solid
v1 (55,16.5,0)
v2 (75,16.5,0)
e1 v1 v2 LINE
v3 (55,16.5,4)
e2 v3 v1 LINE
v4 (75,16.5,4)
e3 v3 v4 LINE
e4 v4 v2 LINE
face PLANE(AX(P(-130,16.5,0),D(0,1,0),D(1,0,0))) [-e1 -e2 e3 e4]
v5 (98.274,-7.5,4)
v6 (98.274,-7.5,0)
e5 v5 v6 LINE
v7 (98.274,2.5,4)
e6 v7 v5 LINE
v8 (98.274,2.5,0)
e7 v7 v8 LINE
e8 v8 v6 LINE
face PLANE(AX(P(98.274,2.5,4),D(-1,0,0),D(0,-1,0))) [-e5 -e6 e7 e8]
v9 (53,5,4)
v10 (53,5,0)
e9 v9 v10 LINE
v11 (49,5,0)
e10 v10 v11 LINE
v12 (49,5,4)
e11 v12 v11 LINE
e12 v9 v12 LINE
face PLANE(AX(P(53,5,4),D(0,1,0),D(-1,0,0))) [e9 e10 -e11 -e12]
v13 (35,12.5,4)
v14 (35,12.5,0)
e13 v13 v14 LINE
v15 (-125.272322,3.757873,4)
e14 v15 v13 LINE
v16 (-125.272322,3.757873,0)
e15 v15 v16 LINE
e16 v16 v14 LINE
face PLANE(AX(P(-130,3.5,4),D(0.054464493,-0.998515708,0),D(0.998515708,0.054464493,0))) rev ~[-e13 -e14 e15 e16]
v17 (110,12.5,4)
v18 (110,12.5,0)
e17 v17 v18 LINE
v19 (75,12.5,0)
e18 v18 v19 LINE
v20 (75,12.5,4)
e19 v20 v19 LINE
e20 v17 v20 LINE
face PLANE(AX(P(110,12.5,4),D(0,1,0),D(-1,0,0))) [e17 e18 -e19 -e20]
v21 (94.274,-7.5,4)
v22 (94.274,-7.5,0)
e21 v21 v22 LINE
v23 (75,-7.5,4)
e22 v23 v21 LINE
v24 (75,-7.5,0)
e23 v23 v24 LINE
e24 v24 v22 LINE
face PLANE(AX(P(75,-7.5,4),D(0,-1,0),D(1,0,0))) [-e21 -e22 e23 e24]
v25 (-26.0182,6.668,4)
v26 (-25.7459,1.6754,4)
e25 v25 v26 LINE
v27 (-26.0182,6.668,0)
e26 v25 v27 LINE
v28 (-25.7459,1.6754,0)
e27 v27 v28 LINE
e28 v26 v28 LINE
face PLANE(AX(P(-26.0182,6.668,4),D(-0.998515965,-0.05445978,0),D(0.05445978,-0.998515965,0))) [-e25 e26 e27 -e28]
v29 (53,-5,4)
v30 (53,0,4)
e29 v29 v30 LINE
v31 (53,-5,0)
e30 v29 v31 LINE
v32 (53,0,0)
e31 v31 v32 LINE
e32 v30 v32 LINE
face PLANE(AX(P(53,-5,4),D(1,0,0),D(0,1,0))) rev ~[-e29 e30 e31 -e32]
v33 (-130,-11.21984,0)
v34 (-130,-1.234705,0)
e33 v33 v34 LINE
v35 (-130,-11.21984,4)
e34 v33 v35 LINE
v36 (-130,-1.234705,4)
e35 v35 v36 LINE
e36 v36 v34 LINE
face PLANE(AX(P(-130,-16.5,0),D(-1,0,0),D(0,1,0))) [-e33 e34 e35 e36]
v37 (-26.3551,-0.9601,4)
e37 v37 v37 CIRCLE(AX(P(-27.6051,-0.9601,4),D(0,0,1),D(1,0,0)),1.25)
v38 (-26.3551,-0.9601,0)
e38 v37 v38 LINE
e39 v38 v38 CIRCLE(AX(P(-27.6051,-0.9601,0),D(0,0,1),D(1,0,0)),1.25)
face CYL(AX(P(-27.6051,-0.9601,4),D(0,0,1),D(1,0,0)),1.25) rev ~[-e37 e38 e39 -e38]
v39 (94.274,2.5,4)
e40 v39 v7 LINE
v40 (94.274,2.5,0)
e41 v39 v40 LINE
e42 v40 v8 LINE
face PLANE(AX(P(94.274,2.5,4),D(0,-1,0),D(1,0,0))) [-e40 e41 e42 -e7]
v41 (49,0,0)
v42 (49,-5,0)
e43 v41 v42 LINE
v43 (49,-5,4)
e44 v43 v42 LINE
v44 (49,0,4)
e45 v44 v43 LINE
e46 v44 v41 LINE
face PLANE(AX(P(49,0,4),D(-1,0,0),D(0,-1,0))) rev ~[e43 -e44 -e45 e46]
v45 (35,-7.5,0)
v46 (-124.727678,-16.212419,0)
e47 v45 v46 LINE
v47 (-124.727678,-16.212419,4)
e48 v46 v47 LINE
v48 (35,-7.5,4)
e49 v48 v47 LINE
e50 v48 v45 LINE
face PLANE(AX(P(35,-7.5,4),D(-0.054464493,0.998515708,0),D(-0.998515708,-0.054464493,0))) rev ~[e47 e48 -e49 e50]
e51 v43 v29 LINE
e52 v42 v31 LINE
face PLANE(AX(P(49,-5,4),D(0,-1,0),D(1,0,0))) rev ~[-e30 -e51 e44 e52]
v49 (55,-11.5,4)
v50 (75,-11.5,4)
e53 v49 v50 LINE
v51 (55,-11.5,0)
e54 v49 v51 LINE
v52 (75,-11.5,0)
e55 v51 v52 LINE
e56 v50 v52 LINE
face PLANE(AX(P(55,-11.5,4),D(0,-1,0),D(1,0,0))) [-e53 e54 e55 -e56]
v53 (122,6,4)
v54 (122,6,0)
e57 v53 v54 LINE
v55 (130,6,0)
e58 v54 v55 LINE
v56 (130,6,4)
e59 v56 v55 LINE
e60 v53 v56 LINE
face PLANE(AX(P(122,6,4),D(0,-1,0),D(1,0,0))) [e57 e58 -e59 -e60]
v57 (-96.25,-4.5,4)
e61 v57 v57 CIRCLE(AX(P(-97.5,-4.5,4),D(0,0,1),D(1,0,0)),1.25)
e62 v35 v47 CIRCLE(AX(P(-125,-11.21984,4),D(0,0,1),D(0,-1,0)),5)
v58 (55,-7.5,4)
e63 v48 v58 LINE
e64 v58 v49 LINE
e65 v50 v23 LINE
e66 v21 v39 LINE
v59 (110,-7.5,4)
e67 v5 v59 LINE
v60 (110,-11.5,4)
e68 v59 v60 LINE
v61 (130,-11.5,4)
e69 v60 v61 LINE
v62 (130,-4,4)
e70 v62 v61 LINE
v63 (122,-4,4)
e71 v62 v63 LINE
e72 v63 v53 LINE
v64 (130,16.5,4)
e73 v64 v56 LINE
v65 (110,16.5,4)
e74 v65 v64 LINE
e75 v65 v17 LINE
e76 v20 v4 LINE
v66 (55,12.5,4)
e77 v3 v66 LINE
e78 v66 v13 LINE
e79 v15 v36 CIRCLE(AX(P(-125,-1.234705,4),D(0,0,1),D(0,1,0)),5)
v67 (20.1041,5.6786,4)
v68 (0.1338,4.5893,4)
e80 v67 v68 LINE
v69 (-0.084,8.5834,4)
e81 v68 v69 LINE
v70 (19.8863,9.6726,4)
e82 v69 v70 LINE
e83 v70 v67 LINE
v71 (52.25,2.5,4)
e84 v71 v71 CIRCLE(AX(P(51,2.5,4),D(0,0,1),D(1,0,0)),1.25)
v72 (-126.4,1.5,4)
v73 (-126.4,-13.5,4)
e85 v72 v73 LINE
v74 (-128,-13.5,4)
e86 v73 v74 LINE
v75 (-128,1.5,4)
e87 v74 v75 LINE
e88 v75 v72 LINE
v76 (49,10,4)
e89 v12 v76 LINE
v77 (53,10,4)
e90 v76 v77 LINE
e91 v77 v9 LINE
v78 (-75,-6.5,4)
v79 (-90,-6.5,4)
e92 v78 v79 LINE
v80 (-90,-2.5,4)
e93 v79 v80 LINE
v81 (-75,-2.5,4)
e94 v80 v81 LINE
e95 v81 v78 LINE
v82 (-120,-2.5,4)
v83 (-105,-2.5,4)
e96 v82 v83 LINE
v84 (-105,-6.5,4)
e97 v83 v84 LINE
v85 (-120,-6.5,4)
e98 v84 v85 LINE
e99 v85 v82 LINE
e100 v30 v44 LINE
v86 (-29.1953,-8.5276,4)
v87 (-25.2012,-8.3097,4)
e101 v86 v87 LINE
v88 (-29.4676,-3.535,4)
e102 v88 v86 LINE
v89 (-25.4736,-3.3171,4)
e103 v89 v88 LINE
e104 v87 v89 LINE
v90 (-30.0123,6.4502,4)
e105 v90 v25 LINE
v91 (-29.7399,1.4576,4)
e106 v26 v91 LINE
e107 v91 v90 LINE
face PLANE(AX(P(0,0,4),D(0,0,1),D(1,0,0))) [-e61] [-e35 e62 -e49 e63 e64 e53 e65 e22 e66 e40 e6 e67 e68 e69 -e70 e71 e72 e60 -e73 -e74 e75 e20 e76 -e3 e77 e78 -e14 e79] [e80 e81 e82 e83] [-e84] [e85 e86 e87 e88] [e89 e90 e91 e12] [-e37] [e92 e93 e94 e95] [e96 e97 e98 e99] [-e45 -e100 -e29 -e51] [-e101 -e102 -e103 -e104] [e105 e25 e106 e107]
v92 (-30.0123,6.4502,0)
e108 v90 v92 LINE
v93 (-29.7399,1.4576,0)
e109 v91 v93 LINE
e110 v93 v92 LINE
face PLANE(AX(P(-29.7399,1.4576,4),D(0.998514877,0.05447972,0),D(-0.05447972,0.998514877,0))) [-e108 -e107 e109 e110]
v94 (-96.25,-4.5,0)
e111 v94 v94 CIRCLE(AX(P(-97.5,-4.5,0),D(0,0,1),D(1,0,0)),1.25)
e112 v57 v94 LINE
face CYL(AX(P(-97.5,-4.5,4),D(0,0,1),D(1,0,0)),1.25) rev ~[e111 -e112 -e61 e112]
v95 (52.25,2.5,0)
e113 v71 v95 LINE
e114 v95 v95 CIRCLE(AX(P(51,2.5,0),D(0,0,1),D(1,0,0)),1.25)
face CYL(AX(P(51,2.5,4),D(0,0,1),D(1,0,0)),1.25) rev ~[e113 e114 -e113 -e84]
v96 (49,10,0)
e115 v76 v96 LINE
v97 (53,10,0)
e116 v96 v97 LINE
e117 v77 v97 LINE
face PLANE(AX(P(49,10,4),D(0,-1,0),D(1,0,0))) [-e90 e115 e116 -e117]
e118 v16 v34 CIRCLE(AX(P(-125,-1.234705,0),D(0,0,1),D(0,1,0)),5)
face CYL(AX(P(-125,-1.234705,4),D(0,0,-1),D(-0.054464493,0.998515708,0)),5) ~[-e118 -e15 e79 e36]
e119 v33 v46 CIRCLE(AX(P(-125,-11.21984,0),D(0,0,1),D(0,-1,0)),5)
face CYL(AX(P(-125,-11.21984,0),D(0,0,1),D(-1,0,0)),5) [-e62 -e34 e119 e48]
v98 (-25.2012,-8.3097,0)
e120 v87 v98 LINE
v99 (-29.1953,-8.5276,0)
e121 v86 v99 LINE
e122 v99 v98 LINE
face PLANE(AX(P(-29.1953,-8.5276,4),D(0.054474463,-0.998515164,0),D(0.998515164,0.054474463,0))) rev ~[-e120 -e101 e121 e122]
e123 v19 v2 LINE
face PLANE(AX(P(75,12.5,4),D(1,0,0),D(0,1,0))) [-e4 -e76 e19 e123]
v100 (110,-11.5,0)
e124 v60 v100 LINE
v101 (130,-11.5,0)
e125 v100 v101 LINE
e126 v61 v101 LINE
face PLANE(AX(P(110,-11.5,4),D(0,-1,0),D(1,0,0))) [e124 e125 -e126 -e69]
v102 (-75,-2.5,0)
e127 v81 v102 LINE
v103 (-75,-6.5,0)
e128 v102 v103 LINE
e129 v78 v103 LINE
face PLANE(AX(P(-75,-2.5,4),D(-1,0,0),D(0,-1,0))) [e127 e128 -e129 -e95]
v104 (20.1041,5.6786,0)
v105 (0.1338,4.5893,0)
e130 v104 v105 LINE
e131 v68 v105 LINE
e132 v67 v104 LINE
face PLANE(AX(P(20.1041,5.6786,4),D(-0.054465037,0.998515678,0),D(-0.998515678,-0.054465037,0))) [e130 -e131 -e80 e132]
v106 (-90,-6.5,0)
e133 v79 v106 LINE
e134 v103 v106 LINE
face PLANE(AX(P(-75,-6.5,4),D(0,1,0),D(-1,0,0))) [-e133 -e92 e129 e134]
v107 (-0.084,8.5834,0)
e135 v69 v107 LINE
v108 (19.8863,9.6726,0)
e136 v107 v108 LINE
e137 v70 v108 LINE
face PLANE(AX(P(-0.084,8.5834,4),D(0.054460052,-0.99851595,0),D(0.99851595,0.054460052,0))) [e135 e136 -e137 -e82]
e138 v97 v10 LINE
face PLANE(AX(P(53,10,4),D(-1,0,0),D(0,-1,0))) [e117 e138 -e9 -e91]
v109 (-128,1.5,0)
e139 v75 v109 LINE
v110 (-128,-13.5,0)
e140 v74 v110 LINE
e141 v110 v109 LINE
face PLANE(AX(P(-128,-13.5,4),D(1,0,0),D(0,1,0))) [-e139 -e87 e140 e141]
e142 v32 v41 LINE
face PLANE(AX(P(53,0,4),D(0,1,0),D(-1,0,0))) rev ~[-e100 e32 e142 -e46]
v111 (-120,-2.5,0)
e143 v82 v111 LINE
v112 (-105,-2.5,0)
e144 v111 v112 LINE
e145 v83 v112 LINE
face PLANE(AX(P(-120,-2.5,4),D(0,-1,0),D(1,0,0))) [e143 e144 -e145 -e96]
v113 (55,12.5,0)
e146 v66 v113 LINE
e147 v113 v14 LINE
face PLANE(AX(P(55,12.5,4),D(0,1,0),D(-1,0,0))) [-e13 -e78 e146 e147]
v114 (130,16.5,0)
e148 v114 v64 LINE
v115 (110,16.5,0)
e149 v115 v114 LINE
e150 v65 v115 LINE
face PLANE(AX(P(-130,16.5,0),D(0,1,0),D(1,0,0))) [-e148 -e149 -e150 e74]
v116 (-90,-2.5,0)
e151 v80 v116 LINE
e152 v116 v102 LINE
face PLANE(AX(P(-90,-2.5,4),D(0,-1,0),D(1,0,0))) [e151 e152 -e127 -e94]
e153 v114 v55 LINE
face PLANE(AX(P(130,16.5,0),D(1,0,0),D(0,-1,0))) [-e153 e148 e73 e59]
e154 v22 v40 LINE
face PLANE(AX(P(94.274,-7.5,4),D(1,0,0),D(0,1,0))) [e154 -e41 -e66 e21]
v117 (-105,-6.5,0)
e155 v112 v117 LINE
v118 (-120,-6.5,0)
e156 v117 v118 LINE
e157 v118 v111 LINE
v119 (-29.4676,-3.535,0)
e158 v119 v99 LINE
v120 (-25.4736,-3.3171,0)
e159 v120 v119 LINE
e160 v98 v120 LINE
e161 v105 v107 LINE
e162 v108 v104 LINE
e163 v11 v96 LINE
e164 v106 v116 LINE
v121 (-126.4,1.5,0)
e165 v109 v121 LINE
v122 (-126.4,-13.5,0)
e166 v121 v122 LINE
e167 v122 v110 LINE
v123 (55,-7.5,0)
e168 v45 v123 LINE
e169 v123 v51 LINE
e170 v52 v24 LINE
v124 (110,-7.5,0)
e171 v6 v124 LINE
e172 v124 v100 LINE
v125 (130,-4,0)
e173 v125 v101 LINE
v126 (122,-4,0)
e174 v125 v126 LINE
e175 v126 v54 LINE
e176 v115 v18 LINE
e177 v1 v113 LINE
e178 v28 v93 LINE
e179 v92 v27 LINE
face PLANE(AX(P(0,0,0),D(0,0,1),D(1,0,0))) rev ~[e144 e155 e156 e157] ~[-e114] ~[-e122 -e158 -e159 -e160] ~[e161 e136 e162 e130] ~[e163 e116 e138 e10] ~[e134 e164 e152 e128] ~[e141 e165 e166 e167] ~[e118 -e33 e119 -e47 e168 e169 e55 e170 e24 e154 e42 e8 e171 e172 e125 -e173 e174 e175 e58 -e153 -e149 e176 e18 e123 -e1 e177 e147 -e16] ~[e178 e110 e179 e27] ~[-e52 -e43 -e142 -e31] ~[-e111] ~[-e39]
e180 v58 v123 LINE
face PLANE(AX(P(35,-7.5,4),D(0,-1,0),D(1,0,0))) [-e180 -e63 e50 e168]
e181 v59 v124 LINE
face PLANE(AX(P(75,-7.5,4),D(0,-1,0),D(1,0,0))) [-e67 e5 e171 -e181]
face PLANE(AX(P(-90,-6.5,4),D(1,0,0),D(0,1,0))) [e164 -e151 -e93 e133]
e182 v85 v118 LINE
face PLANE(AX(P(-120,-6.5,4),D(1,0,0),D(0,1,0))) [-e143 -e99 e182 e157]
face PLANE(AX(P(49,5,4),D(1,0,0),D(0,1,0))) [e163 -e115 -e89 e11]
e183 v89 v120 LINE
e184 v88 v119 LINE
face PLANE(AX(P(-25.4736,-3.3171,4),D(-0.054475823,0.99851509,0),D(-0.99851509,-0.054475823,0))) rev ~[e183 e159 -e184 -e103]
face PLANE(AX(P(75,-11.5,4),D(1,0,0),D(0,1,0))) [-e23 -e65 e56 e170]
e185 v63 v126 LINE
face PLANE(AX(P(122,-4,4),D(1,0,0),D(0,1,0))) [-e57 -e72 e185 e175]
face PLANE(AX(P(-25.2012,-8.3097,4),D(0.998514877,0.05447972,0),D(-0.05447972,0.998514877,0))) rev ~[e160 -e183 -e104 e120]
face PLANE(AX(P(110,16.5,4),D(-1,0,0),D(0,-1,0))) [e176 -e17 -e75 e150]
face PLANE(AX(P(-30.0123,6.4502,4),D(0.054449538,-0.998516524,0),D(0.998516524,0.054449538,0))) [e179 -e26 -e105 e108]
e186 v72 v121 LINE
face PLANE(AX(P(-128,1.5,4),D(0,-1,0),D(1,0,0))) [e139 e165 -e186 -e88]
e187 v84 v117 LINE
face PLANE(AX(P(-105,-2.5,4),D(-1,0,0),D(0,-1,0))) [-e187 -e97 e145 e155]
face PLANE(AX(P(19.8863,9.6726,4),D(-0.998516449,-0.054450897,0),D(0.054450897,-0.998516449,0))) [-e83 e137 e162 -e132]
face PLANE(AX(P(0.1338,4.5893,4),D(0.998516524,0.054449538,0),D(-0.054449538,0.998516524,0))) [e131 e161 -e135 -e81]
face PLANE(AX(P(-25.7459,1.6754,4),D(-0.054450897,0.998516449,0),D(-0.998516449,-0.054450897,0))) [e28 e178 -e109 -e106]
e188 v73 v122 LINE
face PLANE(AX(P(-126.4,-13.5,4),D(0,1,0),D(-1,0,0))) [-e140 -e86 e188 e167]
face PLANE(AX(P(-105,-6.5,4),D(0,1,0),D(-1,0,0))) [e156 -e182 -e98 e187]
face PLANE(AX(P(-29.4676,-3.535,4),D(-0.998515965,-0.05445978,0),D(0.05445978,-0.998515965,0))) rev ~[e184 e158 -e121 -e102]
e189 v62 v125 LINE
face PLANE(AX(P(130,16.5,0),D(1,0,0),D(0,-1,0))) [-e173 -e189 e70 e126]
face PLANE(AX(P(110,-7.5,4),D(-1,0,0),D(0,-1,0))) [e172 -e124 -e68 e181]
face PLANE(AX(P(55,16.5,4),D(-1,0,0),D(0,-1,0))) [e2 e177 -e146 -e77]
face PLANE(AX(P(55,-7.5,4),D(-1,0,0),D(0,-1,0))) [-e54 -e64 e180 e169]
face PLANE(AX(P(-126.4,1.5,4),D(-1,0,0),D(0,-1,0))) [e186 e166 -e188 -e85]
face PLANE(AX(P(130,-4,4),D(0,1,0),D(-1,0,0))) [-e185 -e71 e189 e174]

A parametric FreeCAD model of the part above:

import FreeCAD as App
import Part
import Sketcher
from FreeCAD import Vector


def edges_at(feature, points):
    """Names of the edges that pass closest to the given points."""
    edges = feature.Shape.Edges
    near = lambda p: min(range(len(edges)), key=lambda i: edges[i].distToShape(Part.Vertex(*p))[0])
    return sorted({f"Edge{near(p) + 1}" for p in points})

doc = App.newDocument("Part")
body = doc.addObject("PartDesign::Body", "Body")

sketch1 = body.newObject("Sketcher::SketchObject", "Sketch")
sketch1.AttachmentSupport = (doc.getObject("XY_Plane"), [""])
sketch1.MapMode = "FlatFace"
sketch1.addGeometry([
    Part.LineSegment(Vector(130, 16.5, 0), Vector(-130, 16.5, 0)),
    Part.LineSegment(Vector(-130, 16.5, 0), Vector(-130, -16.5, 0)),
    Part.LineSegment(Vector(-130, -16.5, 0), Vector(130, -16.5, 0)),
    Part.LineSegment(Vector(130, -16.5, 0), Vector(130, 16.5, 0)),
], False)
sketch1.addConstraint([
    Sketcher.Constraint("Coincident", 0, 2, 1, 1),
    Sketcher.Constraint("Coincident", 1, 2, 2, 1),
    Sketcher.Constraint("Coincident", 2, 2, 3, 1),
    Sketcher.Constraint("Coincident", 3, 2, 0, 1),
    Sketcher.Constraint("Horizontal", 0),
    Sketcher.Constraint("Vertical", 1),
    Sketcher.Constraint("Horizontal", 2),
    Sketcher.Constraint("Vertical", 3),
    Sketcher.Constraint("Symmetric", 0, 2, 2, 2, -1, 1),
    Sketcher.Constraint("DistanceX", 0, 2, 0, 1, 260.0),
    Sketcher.Constraint("DistanceY", 1, 2, 1, 1, 33.0),
])
pad1 = body.newObject("PartDesign::Pad", "Pad")
pad1.Profile = sketch1
pad1.Length = 4

sketch2 = body.newObject("Sketcher::SketchObject", "Sketch001")
sketch2.AttachmentSupport = (doc.getObject("XY_Plane"), [""])
sketch2.MapMode = "FlatFace"
sketch2.AttachmentOffset = App.Placement(Vector(0, 0, 4), App.Rotation())
sketch2.addGeometry([
    Part.LineSegment(Vector(130, -16.5, 0), Vector(130, -11.5, 0)),
    Part.LineSegment(Vector(130, -11.5, 0), Vector(110, -11.5, 0)),
    Part.LineSegment(Vector(110, -11.5, 0), Vector(110, -7.5, 0)),
    Part.LineSegment(Vector(110, -7.5, 0), Vector(75, -7.5, 0)),
    Part.LineSegment(Vector(75, -7.5, 0), Vector(75, -11.5, 0)),
    Part.LineSegment(Vector(75, -11.5, 0), Vector(55, -11.5, 0)),
    Part.LineSegment(Vector(55, -11.5, 0), Vector(55, -7.5, 0)),
    Part.LineSegment(Vector(55, -7.5, 0), Vector(35, -7.5, 0)),
    Part.LineSegment(Vector(35, -7.5, 0), Vector(35, -16.5, 0)),
    Part.LineSegment(Vector(35, -16.5, 0), Vector(130, -16.5, 0)),
    Part.LineSegment(Vector(110, 12.5, 0), Vector(110, 16.5, 0)),
    Part.LineSegment(Vector(110, 16.5, 0), Vector(75, 16.5, 0)),
    Part.LineSegment(Vector(75, 16.5, 0), Vector(75, 12.5, 0)),
    Part.LineSegment(Vector(75, 12.5, 0), Vector(110, 12.5, 0)),
    Part.LineSegment(Vector(55, 12.5, 0), Vector(55, 16.5, 0)),
    Part.LineSegment(Vector(55, 16.5, 0), Vector(-130, 16.5, 0)),
    Part.LineSegment(Vector(-130, 16.5, 0), Vector(-130, 12.5, 0)),
    Part.LineSegment(Vector(-130, 12.5, 0), Vector(55, 12.5, 0)),
], False)
sketch2.addConstraint([
    Sketcher.Constraint("Coincident", 0, 2, 1, 1),
    Sketcher.Constraint("Coincident", 1, 2, 2, 1),
    Sketcher.Constraint("Coincident", 2, 2, 3, 1),
    Sketcher.Constraint("Coincident", 3, 2, 4, 1),
    Sketcher.Constraint("Coincident", 4, 2, 5, 1),
    Sketcher.Constraint("Coincident", 5, 2, 6, 1),
    Sketcher.Constraint("Coincident", 6, 2, 7, 1),
    Sketcher.Constraint("Coincident", 7, 2, 8, 1),
    Sketcher.Constraint("Coincident", 8, 2, 9, 1),
    Sketcher.Constraint("Coincident", 9, 2, 0, 1),
    Sketcher.Constraint("Coincident", 10, 2, 11, 1),
    Sketcher.Constraint("Coincident", 11, 2, 12, 1),
    Sketcher.Constraint("Coincident", 12, 2, 13, 1),
    Sketcher.Constraint("Coincident", 13, 2, 10, 1),
    Sketcher.Constraint("Coincident", 14, 2, 15, 1),
    Sketcher.Constraint("Coincident", 15, 2, 16, 1),
    Sketcher.Constraint("Coincident", 16, 2, 17, 1),
    Sketcher.Constraint("Coincident", 17, 2, 14, 1),
    Sketcher.Constraint("Vertical", 0),
    Sketcher.Constraint("Horizontal", 1),
    Sketcher.Constraint("Vertical", 2),
    Sketcher.Constraint("Horizontal", 3),
    Sketcher.Constraint("Vertical", 4),
    Sketcher.Constraint("Horizontal", 5),
    Sketcher.Constraint("Vertical", 6),
    Sketcher.Constraint("Horizontal", 7),
    Sketcher.Constraint("Vertical", 8),
    Sketcher.Constraint("Horizontal", 9),
    Sketcher.Constraint("Vertical", 10),
    Sketcher.Constraint("Horizontal", 11),
    Sketcher.Constraint("Vertical", 12),
    Sketcher.Constraint("Horizontal", 13),
    Sketcher.Constraint("Vertical", 14),
    Sketcher.Constraint("Horizontal", 15),
    Sketcher.Constraint("Vertical", 16),
    Sketcher.Constraint("Horizontal", 17),
    Sketcher.Constraint("Symmetric", 9, 2, 15, 2, -1, 1),
    Sketcher.Constraint("Horizontal", 1, 2, 4, 2),
    Sketcher.Constraint("Horizontal", 3, 2, 6, 2),
    Sketcher.Constraint("Horizontal", 11, 2, 14, 2),
    Sketcher.Constraint("Horizontal", 13, 2, 16, 2),
    Sketcher.Constraint("Vertical", 2, 2, 10, 2),
    Sketcher.Constraint("Vertical", 4, 2, 11, 2),
    Sketcher.Constraint("Vertical", 6, 2, 14, 2),
    Sketcher.Constraint("Equal", 1, 5),
    Sketcher.Constraint("Equal", 5, 7),
    Sketcher.Constraint("Equal", 6, 10),
    Sketcher.Constraint("DistanceX", 1, 2, 1, 1, 20.0),
    Sketcher.Constraint("DistanceX", 3, 2, 3, 1, 35.0),
    Sketcher.Constraint("DistanceX", 15, 2, 15, 1, 185.0),
    Sketcher.Constraint("DistanceY", 0, 1, 0, 2, 5.0),
    Sketcher.Constraint("DistanceY", 2, 1, 2, 2, 4.0),
    Sketcher.Constraint("DistanceY", 3, 2, 12, 2, 20.0),
])
pocket1 = body.newObject("PartDesign::Pocket", "Pocket")
pocket1.Profile = sketch2
pocket1.Length = 4

sketch3 = body.newObject("Sketcher::SketchObject", "Sketch002")
sketch3.AttachmentSupport = (doc.getObject("XY_Plane"), [""])
sketch3.MapMode = "FlatFace"
sketch3.AttachmentOffset = App.Placement(Vector(0, 0, 4), App.Rotation())
sketch3.addGeometry([
    Part.LineSegment(Vector(-130, 3.5, 0), Vector(35, 12.5, 0)),
    Part.LineSegment(Vector(35, 12.5, 0), Vector(-130, 12.5, 0)),
    Part.LineSegment(Vector(-130, 12.5, 0), Vector(-130, 3.5, 0)),
    Part.LineSegment(Vector(35, -7.5, 0), Vector(-130, -16.5, 0)),
    Part.LineSegment(Vector(-130, -16.5, 0), Vector(35, -16.5, 0)),
    Part.LineSegment(Vector(35, -16.5, 0), Vector(35, -7.5, 0)),
], False)
sketch3.addConstraint([
    Sketcher.Constraint("Coincident", 0, 2, 1, 1),
    Sketcher.Constraint("Coincident", 1, 2, 2, 1),
    Sketcher.Constraint("Coincident", 2, 2, 0, 1),
    Sketcher.Constraint("Coincident", 3, 2, 4, 1),
    Sketcher.Constraint("Coincident", 4, 2, 5, 1),
    Sketcher.Constraint("Coincident", 5, 2, 3, 1),
    Sketcher.Constraint("Horizontal", 1),
    Sketcher.Constraint("Vertical", 2),
    Sketcher.Constraint("Horizontal", 4),
    Sketcher.Constraint("Vertical", 5),
    Sketcher.Constraint("Parallel", 0, 3),
    Sketcher.Constraint("Vertical", 2, 2, 3, 2),
    Sketcher.Constraint("Vertical", 0, 2, 4, 2),
    Sketcher.Constraint("DistanceY", 3, 2, 2, 2, 20.0),
    Sketcher.Constraint("DistanceX", 1, 2, 1, 1, 165.0),
    Sketcher.Constraint("DistanceY", 2, 2, 2, 1, 9.0),
    Sketcher.Constraint("DistanceX", -1, 1, 0, 2, 35.0),
    Sketcher.Constraint("DistanceY", -1, 1, 0, 2, 12.5),
])
pocket2 = body.newObject("PartDesign::Pocket", "Pocket001")
pocket2.Profile = sketch3
pocket2.Length = 4

sketch4 = body.newObject("Sketcher::SketchObject", "Sketch003")
sketch4.AttachmentSupport = (doc.getObject("XY_Plane"), [""])
sketch4.MapMode = "FlatFace"
sketch4.AttachmentOffset = App.Placement(Vector(0, 0, 4), App.Rotation())
sketch4.addGeometry([
    Part.LineSegment(Vector(-105, -2.5, 0), Vector(-120, -2.5, 0)),
    Part.LineSegment(Vector(-120, -2.5, 0), Vector(-120, -6.5, 0)),
    Part.LineSegment(Vector(-120, -6.5, 0), Vector(-105, -6.5, 0)),
    Part.LineSegment(Vector(-105, -6.5, 0), Vector(-105, -2.5, 0)),
    Part.LineSegment(Vector(-75, -2.5, 0), Vector(-90, -2.5, 0)),
    Part.LineSegment(Vector(-90, -2.5, 0), Vector(-90, -6.5, 0)),
    Part.LineSegment(Vector(-90, -6.5, 0), Vector(-75, -6.5, 0)),
    Part.LineSegment(Vector(-75, -6.5, 0), Vector(-75, -2.5, 0)),
    Part.Circle(Vector(-97.5, -4.5, 0), Vector(0, 0, 1), 1.25),
], False)
sketch4.addConstraint([
    Sketcher.Constraint("Coincident", 0, 2, 1, 1),
    Sketcher.Constraint("Coincident", 1, 2, 2, 1),
    Sketcher.Constraint("Coincident", 2, 2, 3, 1),
    Sketcher.Constraint("Coincident", 3, 2, 0, 1),
    Sketcher.Constraint("Coincident", 4, 2, 5, 1),
    Sketcher.Constraint("Coincident", 5, 2, 6, 1),
    Sketcher.Constraint("Coincident", 6, 2, 7, 1),
    Sketcher.Constraint("Coincident", 7, 2, 4, 1),
    Sketcher.Constraint("Horizontal", 0),
    Sketcher.Constraint("Vertical", 1),
    Sketcher.Constraint("Horizontal", 2),
    Sketcher.Constraint("Vertical", 3),
    Sketcher.Constraint("Horizontal", 4),
    Sketcher.Constraint("Vertical", 5),
    Sketcher.Constraint("Horizontal", 6),
    Sketcher.Constraint("Vertical", 7),
    Sketcher.Constraint("Horizontal", 3, 2, 4, 2),
    Sketcher.Constraint("Horizontal", 2, 2, 5, 2),
    Sketcher.Constraint("Equal", 2, 4),
    Sketcher.Constraint("Diameter", 8, 2.5),
    Sketcher.Constraint("DistanceX", 0, 2, 0, 1, 15.0),
    Sketcher.Constraint("DistanceY", 1, 2, 1, 1, 4.0),
    Sketcher.Constraint("DistanceY", 8, 3, 0, 2, 2.0),
    Sketcher.Constraint("DistanceX", 3, 2, 4, 2, 15.0),
    Sketcher.Constraint("DistanceY", 0, 2, -1, 1, 2.5),
    Sketcher.Constraint("DistanceX", 2, 2, 8, 3, 7.5),
    Sketcher.Constraint("DistanceX", 0, 2, -1, 1, 120.0),
])
pocket3 = body.newObject("PartDesign::Pocket", "Pocket002")
pocket3.Profile = sketch4
pocket3.Length = 4

sketch5 = body.newObject("Sketcher::SketchObject", "Sketch004")
sketch5.AttachmentSupport = (doc.getObject("XY_Plane"), [""])
sketch5.MapMode = "FlatFace"
sketch5.AttachmentOffset = App.Placement(Vector(0, 0, 4), App.Rotation())
sketch5.addGeometry([
    Part.LineSegment(Vector(130, -4, 0), Vector(130, 6, 0)),
    Part.LineSegment(Vector(130, 6, 0), Vector(122, 6, 0)),
    Part.LineSegment(Vector(122, 6, 0), Vector(122, -4, 0)),
    Part.LineSegment(Vector(122, -4, 0), Vector(130, -4, 0)),
], False)
sketch5.addConstraint([
    Sketcher.Constraint("Coincident", 0, 2, 1, 1),
    Sketcher.Constraint("Coincident", 1, 2, 2, 1),
    Sketcher.Constraint("Coincident", 2, 2, 3, 1),
    Sketcher.Constraint("Coincident", 3, 2, 0, 1),
    Sketcher.Constraint("Vertical", 0),
    Sketcher.Constraint("Horizontal", 1),
    Sketcher.Constraint("Vertical", 2),
    Sketcher.Constraint("Horizontal", 3),
    Sketcher.Constraint("DistanceX", 1, 2, 1, 1, 8.0),
    Sketcher.Constraint("DistanceY", 0, 1, 0, 2, 10.0),
    Sketcher.Constraint("DistanceY", 2, 2, -1, 1, 4.0),
    Sketcher.Constraint("DistanceX", -1, 1, 0, 2, 130.0),
])
pocket4 = body.newObject("PartDesign::Pocket", "Pocket003")
pocket4.Profile = sketch5
pocket4.Length = 4

sketch6 = body.newObject("Sketcher::SketchObject", "Sketch005")
sketch6.AttachmentSupport = (doc.getObject("XY_Plane"), [""])
sketch6.MapMode = "FlatFace"
sketch6.AttachmentOffset = App.Placement(Vector(0, 0, 4), App.Rotation())
sketch6.addGeometry([
    Part.LineSegment(Vector(19.8863, 9.6726, 0), Vector(-0.084, 8.5834, 0)),
    Part.LineSegment(Vector(-0.084, 8.5834, 0), Vector(0.1338, 4.5893, 0)),
    Part.LineSegment(Vector(0.1338, 4.5893, 0), Vector(20.1041, 5.6786, 0)),
    Part.LineSegment(Vector(20.1041, 5.6786, 0), Vector(19.8863, 9.6726, 0)),
], False)
sketch6.addConstraint([
    Sketcher.Constraint("Coincident", 0, 2, 1, 1),
    Sketcher.Constraint("Coincident", 1, 2, 2, 1),
    Sketcher.Constraint("Coincident", 2, 2, 3, 1),
    Sketcher.Constraint("Coincident", 3, 2, 0, 1),
    Sketcher.Constraint("Perpendicular", 0, 1),
    Sketcher.Constraint("Perpendicular", 1, 2),
    Sketcher.Constraint("Perpendicular", 2, 3),
    Sketcher.Constraint("Distance", 0, 20.0),
    Sketcher.Constraint("Distance", 1, 4.0),
    Sketcher.Constraint("DistanceX", 0, 2, -1, 1, 0.084),
    Sketcher.Constraint("DistanceX", -1, 1, 2, 2, 20.104),
    Sketcher.Constraint("DistanceY", -1, 1, 0, 2, 8.5834),
])
pocket5 = body.newObject("PartDesign::Pocket", "Pocket004")
pocket5.Profile = sketch6
pocket5.Length = 4

sketch7 = body.newObject("Sketcher::SketchObject", "Sketch006")
sketch7.AttachmentSupport = (doc.getObject("XY_Plane"), [""])
sketch7.MapMode = "FlatFace"
sketch7.AttachmentOffset = App.Placement(Vector(0, 0, 4), App.Rotation())
sketch7.addGeometry([
    Part.LineSegment(Vector(-26.0182, 6.668, 0), Vector(-30.0123, 6.4502, 0)),
    Part.LineSegment(Vector(-30.0123, 6.4502, 0), Vector(-29.7399, 1.4576, 0)),
    Part.LineSegment(Vector(-29.7399, 1.4576, 0), Vector(-25.7459, 1.6754, 0)),
    Part.LineSegment(Vector(-25.7459, 1.6754, 0), Vector(-26.0182, 6.668, 0)),
    Part.LineSegment(Vector(-29.4676, -3.535, 0), Vector(-29.1953, -8.5276, 0)),
    Part.LineSegment(Vector(-29.1953, -8.5276, 0), Vector(-25.2012, -8.3097, 0)),
    Part.LineSegment(Vector(-25.2012, -8.3097, 0), Vector(-25.4736, -3.3171, 0)),
    Part.LineSegment(Vector(-25.4736, -3.3171, 0), Vector(-29.4676, -3.535, 0)),
    Part.Circle(Vector(-27.6051, -0.9601, 0), Vector(0, 0, 1), 1.25),
    Part.LineSegment(Vector(53, 10, 0), Vector(49, 10, 0)),
    Part.LineSegment(Vector(49, 10, 0), Vector(49, 5, 0)),
    Part.LineSegment(Vector(49, 5, 0), Vector(53, 5, 0)),
    Part.LineSegment(Vector(53, 5, 0), Vector(53, 10, 0)),
    Part.LineSegment(Vector(49, 0, 0), Vector(49, -5, 0)),
    Part.LineSegment(Vector(49, -5, 0), Vector(53, -5, 0)),
    Part.LineSegment(Vector(53, -5, 0), Vector(53, 0, 0)),
    Part.LineSegment(Vector(53, 0, 0), Vector(49, 0, 0)),
    Part.Circle(Vector(51, 2.5, 0), Vector(0, 0, 1), 1.25),
], False)
sketch7.addConstraint([
    Sketcher.Constraint("Coincident", 0, 2, 1, 1),
    Sketcher.Constraint("Coincident", 1, 2, 2, 1),
    Sketcher.Constraint("Coincident", 2, 2, 3, 1),
    Sketcher.Constraint("Coincident", 3, 2, 0, 1),
    Sketcher.Constraint("Coincident", 4, 2, 5, 1),
    Sketcher.Constraint("Coincident", 5, 2, 6, 1),
    Sketcher.Constraint("Coincident", 6, 2, 7, 1),
    Sketcher.Constraint("Coincident", 7, 2, 4, 1),
    Sketcher.Constraint("Coincident", 9, 2, 10, 1),
    Sketcher.Constraint("Coincident", 10, 2, 11, 1),
    Sketcher.Constraint("Coincident", 11, 2, 12, 1),
    Sketcher.Constraint("Coincident", 12, 2, 9, 1),
    Sketcher.Constraint("Coincident", 13, 2, 14, 1),
    Sketcher.Constraint("Coincident", 14, 2, 15, 1),
    Sketcher.Constraint("Coincident", 15, 2, 16, 1),
    Sketcher.Constraint("Coincident", 16, 2, 13, 1),
    Sketcher.Constraint("Horizontal", 9),
    Sketcher.Constraint("Vertical", 10),
    Sketcher.Constraint("Horizontal", 11),
    Sketcher.Constraint("Vertical", 12),
    Sketcher.Constraint("Vertical", 13),
    Sketcher.Constraint("Horizontal", 14),
    Sketcher.Constraint("Vertical", 15),
    Sketcher.Constraint("Horizontal", 16),
    Sketcher.Constraint("PointOnObject", 15, 2, -1),
    Sketcher.Constraint("Diameter", 8, 2.5),
    Sketcher.Constraint("Diameter", 17, 2.5),
    Sketcher.Constraint("DistanceX", 9, 2, 9, 1, 4.0),
    Sketcher.Constraint("DistanceX", 14, 1, 14, 2, 4.0),
    Sketcher.Constraint("DistanceY", 10, 2, 10, 1, 5.0),
    Sketcher.Constraint("DistanceY", 13, 2, 13, 1, 5.0),
    Sketcher.Constraint("Distance", 0, 4.0),
    Sketcher.Constraint("Distance", 1, 5.0),
    Sketcher.Constraint("Distance", 2, 4.0),
    Sketcher.Constraint("Distance", 3, 5.0),
    Sketcher.Constraint("Distance", 4, 5.0),
    Sketcher.Constraint("Distance", 5, 4.0),
    Sketcher.Constraint("Distance", 6, 5.0),
    Sketcher.Constraint("Distance", 7, 4.0),
    Sketcher.Constraint("DistanceY", -1, 1, 9, 2, 10.0),
    Sketcher.Constraint("DistanceX", 9, 2, 17, 3, 2.0),
    Sketcher.Constraint("DistanceX", 13, 2, 17, 3, 2.0),
    Sketcher.Constraint("DistanceY", -1, 1, 17, 3, 2.5),
    Sketcher.Constraint("DistanceX", -1, 1, 17, 3, 51.0),
    Sketcher.Constraint("DistanceY", 8, 3, -1, 1, 0.96),
    Sketcher.Constraint("DistanceX", 1, 2, -1, 1, 29.74),
    Sketcher.Constraint("DistanceX", 8, 3, -1, 1, 27.605),
    Sketcher.Constraint("DistanceX", 2, 2, -1, 1, 25.746),
    Sketcher.Constraint("DistanceY", -1, 1, 3, 2, 6.668),
    Sketcher.Constraint("DistanceY", 6, 2, -1, 1, 3.317),
    Sketcher.Constraint("DistanceY", 7, 2, -1, 1, 3.535),
    Sketcher.Constraint("DistanceX", 8, 3, 3, 2, 1.587),
    Sketcher.Constraint("DistanceY", 4, 2, 2, 2, 10.203),
    Sketcher.Constraint("DistanceX", 0, 2, 4, 2, 0.817),
])
pocket6 = body.newObject("PartDesign::Pocket", "Pocket005")
pocket6.Profile = sketch7
pocket6.Length = 10

sketch8 = body.newObject("Sketcher::SketchObject", "Sketch007")
sketch8.AttachmentSupport = (doc.getObject("XY_Plane"), [""])
sketch8.MapMode = "FlatFace"
sketch8.AttachmentOffset = App.Placement(Vector(0, 0, 4), App.Rotation())
sketch8.addGeometry([
    Part.LineSegment(Vector(94.274, 2.5, 0), Vector(94.274, -7.5, 0)),
    Part.LineSegment(Vector(94.274, -7.5, 0), Vector(98.274, -7.5, 0)),
    Part.LineSegment(Vector(98.274, -7.5, 0), Vector(98.274, 2.5, 0)),
    Part.LineSegment(Vector(98.274, 2.5, 0), Vector(94.274, 2.5, 0)),
], False)
sketch8.addConstraint([
    Sketcher.Constraint("Coincident", 0, 2, 1, 1),
    Sketcher.Constraint("Coincident", 1, 2, 2, 1),
    Sketcher.Constraint("Coincident", 2, 2, 3, 1),
    Sketcher.Constraint("Coincident", 3, 2, 0, 1),
    Sketcher.Constraint("Vertical", 0),
    Sketcher.Constraint("Horizontal", 1),
    Sketcher.Constraint("Vertical", 2),
    Sketcher.Constraint("Horizontal", 3),
    Sketcher.Constraint("DistanceX", 1, 1, 1, 2, 4.0),
    Sketcher.Constraint("DistanceY", 0, 2, 0, 1, 10.0),
    Sketcher.Constraint("DistanceY", 0, 2, -1, 1, 7.5),
    Sketcher.Constraint("DistanceX", -1, 1, 0, 2, 94.274),
])
pocket7 = body.newObject("PartDesign::Pocket", "Pocket006")
pocket7.Profile = sketch8
pocket7.Length = 10

sketch9 = body.newObject("Sketcher::SketchObject", "Sketch008")
sketch9.AttachmentSupport = (doc.getObject("XY_Plane"), [""])
sketch9.MapMode = "FlatFace"
sketch9.AttachmentOffset = App.Placement(Vector(0, 0, 4), App.Rotation())
sketch9.addGeometry([
    Part.LineSegment(Vector(-126.4, 1.5, 0), Vector(-128, 1.5, 0)),
    Part.LineSegment(Vector(-128, 1.5, 0), Vector(-128, -13.5, 0)),
    Part.LineSegment(Vector(-128, -13.5, 0), Vector(-126.4, -13.5, 0)),
    Part.LineSegment(Vector(-126.4, -13.5, 0), Vector(-126.4, 1.5, 0)),
], False)
sketch9.addConstraint([
    Sketcher.Constraint("Coincident", 0, 2, 1, 1),
    Sketcher.Constraint("Coincident", 1, 2, 2, 1),
    Sketcher.Constraint("Coincident", 2, 2, 3, 1),
    Sketcher.Constraint("Coincident", 3, 2, 0, 1),
    Sketcher.Constraint("Horizontal", 0),
    Sketcher.Constraint("Vertical", 1),
    Sketcher.Constraint("Horizontal", 2),
    Sketcher.Constraint("Vertical", 3),
    Sketcher.Constraint("DistanceY", 1, 2, 1, 1, 15.0),
    Sketcher.Constraint("DistanceX", 0, 2, 0, 1, 1.6),
    Sketcher.Constraint("DistanceX", 0, 2, -1, 1, 128.0),
    Sketcher.Constraint("DistanceY", -1, 1, 0, 2, 1.5),
])
pocket8 = body.newObject("PartDesign::Pocket", "Pocket007")
pocket8.Profile = sketch9
pocket8.Length = 10
doc.recompute()

fillet = body.newObject("PartDesign::Fillet", "Fillet")
fillet.Base = (pocket8, edges_at(pocket8, [(-130, 3.5, 2), (-130, -16.5, 2)]))
fillet.Radius = 5

doc.recompute()
